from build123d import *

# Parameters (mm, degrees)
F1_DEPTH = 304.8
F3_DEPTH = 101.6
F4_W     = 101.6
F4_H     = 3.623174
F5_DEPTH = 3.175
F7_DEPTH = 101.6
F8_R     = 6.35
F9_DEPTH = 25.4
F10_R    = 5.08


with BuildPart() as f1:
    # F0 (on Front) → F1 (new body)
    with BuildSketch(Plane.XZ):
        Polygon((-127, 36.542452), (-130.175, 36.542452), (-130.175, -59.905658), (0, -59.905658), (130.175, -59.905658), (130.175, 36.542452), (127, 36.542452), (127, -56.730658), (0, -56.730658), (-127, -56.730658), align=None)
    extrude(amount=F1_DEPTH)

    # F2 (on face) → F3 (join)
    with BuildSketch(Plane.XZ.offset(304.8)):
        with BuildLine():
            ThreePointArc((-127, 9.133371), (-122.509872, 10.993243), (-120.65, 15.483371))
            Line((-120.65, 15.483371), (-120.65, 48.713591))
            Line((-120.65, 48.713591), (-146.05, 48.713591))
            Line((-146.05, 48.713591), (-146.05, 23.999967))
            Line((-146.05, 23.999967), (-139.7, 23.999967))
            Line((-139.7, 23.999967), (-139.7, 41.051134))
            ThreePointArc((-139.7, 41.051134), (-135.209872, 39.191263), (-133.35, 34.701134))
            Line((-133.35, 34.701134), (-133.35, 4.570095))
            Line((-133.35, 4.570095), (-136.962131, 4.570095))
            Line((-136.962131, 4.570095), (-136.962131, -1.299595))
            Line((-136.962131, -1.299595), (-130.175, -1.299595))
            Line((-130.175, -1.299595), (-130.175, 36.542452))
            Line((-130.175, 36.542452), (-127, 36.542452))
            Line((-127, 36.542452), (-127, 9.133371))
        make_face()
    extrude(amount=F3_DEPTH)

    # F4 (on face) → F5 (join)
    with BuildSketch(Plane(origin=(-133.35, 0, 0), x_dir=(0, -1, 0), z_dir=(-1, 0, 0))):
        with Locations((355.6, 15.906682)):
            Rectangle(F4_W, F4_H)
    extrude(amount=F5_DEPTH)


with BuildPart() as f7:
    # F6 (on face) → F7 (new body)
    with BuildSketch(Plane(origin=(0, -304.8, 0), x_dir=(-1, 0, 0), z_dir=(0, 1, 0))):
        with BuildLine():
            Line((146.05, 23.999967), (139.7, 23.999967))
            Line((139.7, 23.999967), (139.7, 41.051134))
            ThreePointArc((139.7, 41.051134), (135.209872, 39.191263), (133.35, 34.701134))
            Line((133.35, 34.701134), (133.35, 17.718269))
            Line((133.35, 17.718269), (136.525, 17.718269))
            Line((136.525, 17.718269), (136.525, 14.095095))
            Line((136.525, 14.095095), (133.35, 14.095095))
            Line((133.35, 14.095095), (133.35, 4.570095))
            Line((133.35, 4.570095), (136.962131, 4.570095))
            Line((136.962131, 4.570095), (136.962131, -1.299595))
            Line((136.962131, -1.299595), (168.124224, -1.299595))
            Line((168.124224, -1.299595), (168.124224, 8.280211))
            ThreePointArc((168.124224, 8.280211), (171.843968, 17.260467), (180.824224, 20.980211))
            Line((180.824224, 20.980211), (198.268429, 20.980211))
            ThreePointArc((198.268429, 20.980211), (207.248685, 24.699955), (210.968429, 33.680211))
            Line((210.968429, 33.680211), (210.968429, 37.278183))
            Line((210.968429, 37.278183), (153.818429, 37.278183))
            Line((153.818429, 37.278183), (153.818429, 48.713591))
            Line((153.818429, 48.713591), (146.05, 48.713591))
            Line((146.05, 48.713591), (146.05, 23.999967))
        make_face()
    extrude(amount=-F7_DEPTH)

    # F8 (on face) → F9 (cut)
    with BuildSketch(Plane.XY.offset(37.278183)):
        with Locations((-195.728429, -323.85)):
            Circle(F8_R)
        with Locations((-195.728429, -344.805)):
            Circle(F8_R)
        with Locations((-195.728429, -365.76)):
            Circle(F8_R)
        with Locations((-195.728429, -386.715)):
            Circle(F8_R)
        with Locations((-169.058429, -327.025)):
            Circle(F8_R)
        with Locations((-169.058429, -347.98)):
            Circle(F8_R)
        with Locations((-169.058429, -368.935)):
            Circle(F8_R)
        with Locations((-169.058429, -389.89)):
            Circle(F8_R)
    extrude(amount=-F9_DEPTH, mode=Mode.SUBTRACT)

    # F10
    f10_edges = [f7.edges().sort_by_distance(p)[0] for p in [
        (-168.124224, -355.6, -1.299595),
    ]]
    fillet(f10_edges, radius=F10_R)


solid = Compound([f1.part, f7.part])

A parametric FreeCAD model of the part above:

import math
import FreeCAD as App
import Part
import Sketcher
from FreeCAD import Vector
Q = App.Units.Quantity


def edges_at(feature, points):
    """Names of the edges that pass closest to the given points."""
    edges = feature.Shape.Edges
    near = lambda p: min(range(len(edges)), key=lambda i: edges[i].distToShape(Part.Vertex(*p))[0])
    return sorted({f"Edge{near(p) + 1}" for p in points})

doc = App.newDocument("Part")
body = doc.addObject("PartDesign::Body", "Body")
body.AllowCompound = True

sketch1 = body.newObject("Sketcher::SketchObject", "Sketch")
sketch1.AttachmentSupport = (doc.getObject("XZ_Plane"), [""])
sketch1.MapMode = "FlatFace"
sketch1.addGeometry([
    Part.LineSegment(Vector(-127, 36.542452, 0), Vector(-130.175, 36.542452, 0)),
    Part.LineSegment(Vector(-130.175, 36.542452, 0), Vector(-130.175, -59.905658, 0)),
    Part.LineSegment(Vector(-130.175, -59.905658, 0), Vector(130.175, -59.905658, 0)),
    Part.LineSegment(Vector(130.175, -59.905658, 0), Vector(130.175, 36.542452, 0)),
    Part.LineSegment(Vector(130.175, 36.542452, 0), Vector(127, 36.542452, 0)),
    Part.LineSegment(Vector(127, 36.542452, 0), Vector(127, -56.730658, 0)),
    Part.LineSegment(Vector(127, -56.730658, 0), Vector(-127, -56.730658, 0)),
    Part.LineSegment(Vector(-127, -56.730658, 0), Vector(-127, 36.542452, 0)),
], False)
sketch1.addConstraint([
    Sketcher.Constraint("Coincident", 0, 2, 1, 1),
    Sketcher.Constraint("Coincident", 1, 2, 2, 1),
    Sketcher.Constraint("Coincident", 2, 2, 3, 1),
    Sketcher.Constraint("Coincident", 3, 2, 4, 1),
    Sketcher.Constraint("Coincident", 4, 2, 5, 1),
    Sketcher.Constraint("Coincident", 5, 2, 6, 1),
    Sketcher.Constraint("Coincident", 6, 2, 7, 1),
    Sketcher.Constraint("Coincident", 7, 2, 0, 1),
    Sketcher.Constraint("Horizontal", 0),
    Sketcher.Constraint("Vertical", 1),
    Sketcher.Constraint("Horizontal", 2),
    Sketcher.Constraint("Vertical", 3),
    Sketcher.Constraint("Horizontal", 4),
    Sketcher.Constraint("Vertical", 5),
    Sketcher.Constraint("Horizontal", 6),
    Sketcher.Constraint("Vertical", 7),
    Sketcher.Constraint("Symmetric", 0, 2, 3, 2, -2),
    Sketcher.Constraint("Equal", 0, 4),
    Sketcher.Constraint("DistanceX", 6, 2, 6, 1, Q("10 in")),
    Sketcher.Constraint("DistanceX", 2, 1, 2, 2, Q("10.25 in")),
    Sketcher.Constraint("DistanceY", 2, 2, 5, 2, Q("0.125 in")),
    Sketcher.Constraint("DistanceY", 1, 2, 1, 1, Q("96.44811 mm")),
    Sketcher.Constraint("DistanceY", -1, 1, 0, 2, Q("36.542452 mm")),
])
pad1 = body.newObject("PartDesign::Pad", "Pad")
pad1.Profile = sketch1
pad1.Length = Q("12 in")

sketch2 = body.newObject("Sketcher::SketchObject", "Sketch001")
sketch2.AttachmentSupport = (doc.getObject("XZ_Plane"), [""])
sketch2.MapMode = "FlatFace"
sketch2.AttachmentOffset = App.Placement(Vector(0, 0, 12 * 25.4), App.Rotation())
sketch2.addGeometry([
    Part.ArcOfCircle(Part.Circle(Vector(-127, 15.483371, 0), Vector(0, 0, 1), 6.35), math.radians(-89.999998), math.radians(-0.000002)),
    Part.LineSegment(Vector(-120.65, 15.483371, 0), Vector(-120.65, 48.713591, 0)),
    Part.LineSegment(Vector(-120.65, 48.713591, 0), Vector(-146.05, 48.713591, 0)),
    Part.LineSegment(Vector(-146.05, 48.713591, 0), Vector(-146.05, 23.999967, 0)),
    Part.LineSegment(Vector(-146.05, 23.999967, 0), Vector(-139.7, 23.999967, 0)),
    Part.LineSegment(Vector(-139.7, 23.999967, 0), Vector(-139.7, 41.051134, 0)),
    Part.ArcOfCircle(Part.Circle(Vector(-139.699998, 34.701135, 0), Vector(0, 0, 1), 6.349998), math.radians(-0.000014), math.radians(90.000014)),
    Part.LineSegment(Vector(-133.35, 34.701134, 0), Vector(-133.35, 4.570095, 0)),
    Part.LineSegment(Vector(-133.35, 4.570095, 0), Vector(-136.962131, 4.570095, 0)),
    Part.LineSegment(Vector(-136.962131, 4.570095, 0), Vector(-136.962131, -1.299595, 0)),
    Part.LineSegment(Vector(-136.962131, -1.299595, 0), Vector(-130.175, -1.299595, 0)),
    Part.LineSegment(Vector(-130.175, -1.299595, 0), Vector(-130.175, 36.542452, 0)),
    Part.LineSegment(Vector(-130.175, 36.542452, 0), Vector(-127, 36.542452, 0)),
    Part.LineSegment(Vector(-127, 36.542452, 0), Vector(-127, 9.133371, 0)),
], False)
sketch2.addConstraint([
    Sketcher.Constraint("Tangent", 0, 2, 1, 1),
    Sketcher.Constraint("Coincident", 1, 2, 2, 1),
    Sketcher.Constraint("Coincident", 2, 2, 3, 1),
    Sketcher.Constraint("Coincident", 3, 2, 4, 1),
    Sketcher.Constraint("Coincident", 4, 2, 5, 1),
    Sketcher.Constraint("Coincident", 5, 2, 6, 2),
    Sketcher.Constraint("Tangent", 6, 1, 7, 1),
    Sketcher.Constraint("Coincident", 7, 2, 8, 1),
    Sketcher.Constraint("Coincident", 8, 2, 9, 1),
    Sketcher.Constraint("Coincident", 9, 2, 10, 1),
    Sketcher.Constraint("Coincident", 10, 2, 11, 1),
    Sketcher.Constraint("Coincident", 11, 2, 12, 1),
    Sketcher.Constraint("Coincident", 12, 2, 13, 1),
    Sketcher.Constraint("Coincident", 13, 2, 0, 1),
    Sketcher.Constraint("Vertical", 1),
    Sketcher.Constraint("Horizontal", 2),
    Sketcher.Constraint("Vertical", 3),
    Sketcher.Constraint("Horizontal", 4),
    Sketcher.Constraint("Vertical", 5),
    Sketcher.Constraint("Vertical", 7),
    Sketcher.Constraint("Horizontal", 8),
    Sketcher.Constraint("Vertical", 9),
    Sketcher.Constraint("Horizontal", 10),
    Sketcher.Constraint("Vertical", 11),
    Sketcher.Constraint("Horizontal", 12),
    Sketcher.Constraint("Vertical", 13),
    Sketcher.Constraint("Equal", 0, 6),
    Sketcher.Constraint("Vertical", 6, 3, 4, 2),
    Sketcher.Constraint("Vertical", 0, 3, 12, 2),
    Sketcher.Constraint("DistanceX", 2, 2, 2, 1, Q("1 in")),
    Sketcher.Constraint("Radius", 0, Q("0.25 in")),
    Sketcher.Constraint("DistanceX", 0, 3, -1, 1, Q("5 in")),
    Sketcher.Constraint("DistanceX", 4, 1, 4, 2, Q("0.25 in")),
    Sketcher.Constraint("DistanceX", 12, 1, 12, 2, Q("0.125 in")),
    Sketcher.Constraint("DistanceX", 8, 2, 8, 1, Q("3.612131 mm")),
    Sketcher.Constraint("DistanceY", 1, 1, 1, 2, Q("33.23022 mm")),
    Sketcher.Constraint("DistanceY", 7, 2, 7, 1, Q("30.131039 mm")),
    Sketcher.Constraint("DistanceY", 9, 2, 9, 1, Q("5.86969 mm")),
    Sketcher.Constraint("DistanceY", 13, 2, 13, 1, Q("27.409081 mm")),
    Sketcher.Constraint("DistanceY", 3, 2, 3, 1, Q("24.713624 mm")),
    Sketcher.Constraint("DistanceY", 5, 1, 5, 2, Q("17.051167 mm")),
    Sketcher.Constraint("DistanceY", -1, 1, 0, 3, Q("15.483371 mm")),
])
pad2 = body.newObject("PartDesign::Pad", "Pad001")
pad2.Profile = sketch2
pad2.Length = Q("4 in")

sketch3 = body.newObject("Sketcher::SketchObject", "Sketch002")
sketch3.AttachmentSupport = (doc.getObject("YZ_Plane"), [""])
sketch3.MapMode = "FlatFace"
sketch3.AttachmentOffset = App.Placement(Vector(0, 0, -5.25 * 25.4), App.Rotation())
sketch3.addGeometry([
    Part.LineSegment(Vector(-304.8, 17.718269, 0), Vector(-304.8, 14.095095, 0)),
    Part.LineSegment(Vector(-304.8, 14.095095, 0), Vector(-406.4, 14.095095, 0)),
    Part.LineSegment(Vector(-406.4, 14.095095, 0), Vector(-406.4, 17.718269, 0)),
    Part.LineSegment(Vector(-406.4, 17.718269, 0), Vector(-304.8, 17.718269, 0)),
], False)
sketch3.addConstraint([
    Sketcher.Constraint("Coincident", 0, 2, 1, 1),
    Sketcher.Constraint("Coincident", 1, 2, 2, 1),
    Sketcher.Constraint("Coincident", 2, 2, 3, 1),
    Sketcher.Constraint("Coincident", 3, 2, 0, 1),
    Sketcher.Constraint("Vertical", 0),
    Sketcher.Constraint("Horizontal", 1),
    Sketcher.Constraint("Vertical", 2),
    Sketcher.Constraint("Horizontal", 3),
    Sketcher.Constraint("DistanceX", 1, 2, 1, 1, Q("4 in")),
    Sketcher.Constraint("DistanceX", 0, 2, -1, 1, Q("12 in")),
    Sketcher.Constraint("DistanceY", 0, 2, 0, 1, Q("3.623174 mm")),
    Sketcher.Constraint("DistanceY", -1, 1, 2, 2, Q("17.718269 mm")),
])
pad3 = body.newObject("PartDesign::Pad", "Pad002")
pad3.Profile = sketch3
pad3.Length = Q("0.125 in")
pad3.Reversed = True
body2 = doc.addObject("PartDesign::Body", "Body001")

sketch4 = body2.newObject("Sketcher::SketchObject", "Sketch003")
sketch4.AttachmentSupport = (doc.getObject("XZ_Plane001"), [""])
sketch4.MapMode = "FlatFace"
sketch4.AttachmentOffset = App.Placement(Vector(0, 0, 12 * 25.4), App.Rotation())
sketch4.addGeometry([
    Part.LineSegment(Vector(-146.05, 23.999967, 0), Vector(-139.7, 23.999967, 0)),
    Part.LineSegment(Vector(-139.7, 23.999967, 0), Vector(-139.7, 41.051134, 0)),
    Part.ArcOfCircle(Part.Circle(Vector(-139.699998, 34.701135, 0), Vector(0, 0, 1), 6.349998), math.radians(-0.000014), math.radians(90.000014)),
    Part.LineSegment(Vector(-133.35, 34.701134, 0), Vector(-133.35, 17.718269, 0)),
    Part.LineSegment(Vector(-133.35, 17.718269, 0), Vector(-136.525, 17.718269, 0)),
    Part.LineSegment(Vector(-136.525, 17.718269, 0), Vector(-136.525, 14.095095, 0)),
    Part.LineSegment(Vector(-136.525, 14.095095, 0), Vector(-133.35, 14.095095, 0)),
    Part.LineSegment(Vector(-133.35, 14.095095, 0), Vector(-133.35, 4.570095, 0)),
    Part.LineSegment(Vector(-133.35, 4.570095, 0), Vector(-136.962131, 4.570095, 0)),
    Part.LineSegment(Vector(-136.962131, 4.570095, 0), Vector(-136.962131, -1.299595, 0)),
    Part.LineSegment(Vector(-136.962131, -1.299595, 0), Vector(-168.124224, -1.299595, 0)),
    Part.LineSegment(Vector(-168.124224, -1.299595, 0), Vector(-168.124224, 8.280211, 0)),
    Part.ArcOfCircle(Part.Circle(Vector(-180.824224, 8.280211, 0), Vector(0, 0, 1), 12.7), math.radians(0.000002), math.radians(89.999998)),
    Part.LineSegment(Vector(-180.824224, 20.980211, 0), Vector(-198.268429, 20.980211, 0)),
    Part.ArcOfCircle(Part.Circle(Vector(-198.268429, 33.680211, 0), Vector(0, 0, 1), 12.7), math.radians(-179.999998), math.radians(-90.000002)),
    Part.LineSegment(Vector(-210.968429, 33.680211, 0), Vector(-210.968429, 37.278183, 0)),
    Part.LineSegment(Vector(-210.968429, 37.278183, 0), Vector(-153.818429, 37.278183, 0)),
    Part.LineSegment(Vector(-153.818429, 37.278183, 0), Vector(-153.818429, 48.713591, 0)),
    Part.LineSegment(Vector(-153.818429, 48.713591, 0), Vector(-146.05, 48.713591, 0)),
    Part.LineSegment(Vector(-146.05, 48.713591, 0), Vector(-146.05, 23.999967, 0)),
], False)
sketch4.addConstraint([
    Sketcher.Constraint("Coincident", 0, 2, 1, 1),
    Sketcher.Constraint("Coincident", 1, 2, 2, 2),
    Sketcher.Constraint("Tangent", 2, 1, 3, 1),
    Sketcher.Constraint("Coincident", 3, 2, 4, 1),
    Sketcher.Constraint("Coincident", 4, 2, 5, 1),
    Sketcher.Constraint("Coincident", 5, 2, 6, 1),
    Sketcher.Constraint("Coincident", 6, 2, 7, 1),
    Sketcher.Constraint("Coincident", 7, 2, 8, 1),
    Sketcher.Constraint("Coincident", 8, 2, 9, 1),
    Sketcher.Constraint("Coincident", 9, 2, 10, 1),
    Sketcher.Constraint("Coincident", 10, 2, 11, 1),
    Sketcher.Constraint("Tangent", 11, 2, 12, 1),
    Sketcher.Constraint("Tangent", 12, 2, 13, 1),
    Sketcher.Constraint("Tangent", 13, 2, 14, 2),
    Sketcher.Constraint("Tangent", 14, 1, 15, 1),
    Sketcher.Constraint("Coincident", 15, 2, 16, 1),
    Sketcher.Constraint("Coincident", 16, 2, 17, 1),
    Sketcher.Constraint("Coincident", 17, 2, 18, 1),
    Sketcher.Constraint("Coincident", 18, 2, 19, 1),
    Sketcher.Constraint("Coincident", 19, 2, 0, 1),
    Sketcher.Constraint("Horizontal", 0),
    Sketcher.Constraint("Vertical", 1),
    Sketcher.Constraint("Vertical", 3),
    Sketcher.Constraint("Horizontal", 4),
    Sketcher.Constraint("Vertical", 5),
    Sketcher.Constraint("Horizontal", 6),
    Sketcher.Constraint("Vertical", 7),
    Sketcher.Constraint("Horizontal", 8),
    Sketcher.Constraint("Vertical", 9),
    Sketcher.Constraint("Horizontal", 10),
    Sketcher.Constraint("Vertical", 11),
    Sketcher.Constraint("Horizontal", 13),
    Sketcher.Constraint("Vertical", 15),
    Sketcher.Constraint("Horizontal", 16),
    Sketcher.Constraint("Vertical", 17),
    Sketcher.Constraint("Horizontal", 18),
    Sketcher.Constraint("Vertical", 19),
    Sketcher.Constraint("Equal", 12, 14),
    Sketcher.Constraint("Vertical", 2, 3, 0, 2),
    Sketcher.Constraint("Vertical", 3, 2, 6, 2),
    Sketcher.Constraint("Radius", 12, Q("0.5 in")),
    Sketcher.Constraint("Radius", 2, Q("0.2499999 in")),
    Sketcher.Constraint("DistanceX", 0, 1, 0, 2, Q("0.25 in")),
    Sketcher.Constraint("DistanceX", 16, 1, 16, 2, Q("2.25 in")),
    Sketcher.Constraint("DistanceX", 2, 3, -1, 1, Q("5.4999999 in")),
    Sketcher.Constraint("DistanceX", 4, 2, 4, 1, Q("0.125 in")),
    Sketcher.Constraint("DistanceY", 7, 2, 7, 1, Q("0.375 in")),
    Sketcher.Constraint("DistanceX", 8, 2, 8, 1, Q("3.612131 mm")),
    Sketcher.Constraint("DistanceX", 18, 1, 18, 2, Q("7.768429 mm")),
    Sketcher.Constraint("DistanceY", 9, 2, 9, 1, Q("5.86969 mm")),
    Sketcher.Constraint("DistanceY", 15, 1, 15, 2, Q("3.597972 mm")),
    Sketcher.Constraint("DistanceY", 17, 1, 17, 2, Q("11.435408 mm")),
    Sketcher.Constraint("DistanceY", 3, 2, 0, 2, Q("6.281698 mm")),
    Sketcher.Constraint("DistanceX", 10, 2, 10, 1, Q("31.162093 mm")),
    Sketcher.Constraint("DistanceY", 1, 1, 1, 2, Q("17.051167 mm")),
    Sketcher.Constraint("DistanceY", 5, 2, 5, 1, Q("3.623174 mm")),
    Sketcher.Constraint("DistanceY", 11, 1, 11, 2, Q("9.579806 mm")),
    Sketcher.Constraint("DistanceY", -1, 1, 12, 3, Q("8.280211 mm")),
])
pad4 = body2.newObject("PartDesign::Pad", "Pad003")
pad4.Profile = sketch4
pad4.Length = Q("4 in")

sketch5 = body2.newObject("Sketcher::SketchObject", "Sketch004")
sketch5.AttachmentSupport = (doc.getObject("XY_Plane001"), [""])
sketch5.MapMode = "FlatFace"
sketch5.AttachmentOffset = App.Placement(Vector(0, 0, 37.278183), App.Rotation())
sketch5.addGeometry([
    Part.Circle(Vector(-195.728429, -323.85, 0), Vector(0, 0, 1), 6.35),
    Part.Circle(Vector(-195.728429, -344.805, 0), Vector(0, 0, 1), 6.35),
    Part.Circle(Vector(-195.728429, -365.76, 0), Vector(0, 0, 1), 6.35),
    Part.Circle(Vector(-195.728429, -386.715, 0), Vector(0, 0, 1), 6.35),
    Part.Circle(Vector(-169.058429, -327.025, 0), Vector(0, 0, 1), 6.35),
    Part.Circle(Vector(-169.058429, -347.98, 0), Vector(0, 0, 1), 6.35),
    Part.Circle(Vector(-169.058429, -368.935, 0), Vector(0, 0, 1), 6.35),
    Part.Circle(Vector(-169.058429, -389.89, 0), Vector(0, 0, 1), 6.35),
], False)
sketch5.addConstraint([
    Sketcher.Constraint("Equal", 0, 1),
    Sketcher.Constraint("Equal", 1, 2),
    Sketcher.Constraint("Equal", 2, 3),
    Sketcher.Constraint("Equal", 3, 4),
    Sketcher.Constraint("Equal", 4, 5),
    Sketcher.Constraint("Equal", 5, 6),
    Sketcher.Constraint("Equal", 6, 7),
    Sketcher.Constraint("Vertical", 0, 3, 1, 3),
    Sketcher.Constraint("Vertical", 1, 3, 2, 3),
    Sketcher.Constraint("Vertical", 2, 3, 3, 3),
    Sketcher.Constraint("Vertical", 4, 3, 5, 3),
    Sketcher.Constraint("Vertical", 5, 3, 6, 3),
    Sketcher.Constraint("Vertical", 6, 3, 7, 3),
    Sketcher.Constraint("Diameter", 0, Q("0.5 in")),
    Sketcher.Constraint("DistanceY", 2, 3, -1, 1, Q("14.4 in")),
    Sketcher.Constraint("DistanceY", 5, 3, -1, 1, Q("13.7 in")),
    Sketcher.Constraint("DistanceY", 1, 3, 4, 3, Q("0.7 in")),
    Sketcher.Constraint("DistanceY", 3, 3, 6, 3, Q("0.7 in")),
    Sketcher.Constraint("DistanceY", 0, 3, -1, 1, Q("12.75 in")),
    Sketcher.Constraint("DistanceY", 7, 3, -1, 1, Q("15.35 in")),
    Sketcher.Constraint("DistanceY", 3, 3, 1, 3, Q("1.65 in")),
    Sketcher.Constraint("DistanceX", 0, 3, 4, 3, Q("1.05 in")),
    Sketcher.Constraint("DistanceY", 1, 3, -1, 1, Q("13.575 in")),
    Sketcher.Constraint("DistanceX", 0, 3, -1, 1, Q("195.728429 mm")),
])
pocket1 = body2.newObject("PartDesign::Pocket", "Pocket")
pocket1.Profile = sketch5
pocket1.Length = Q("1 in")
doc.recompute()

fillet = body2.newObject("PartDesign::Fillet", "Fillet")
fillet.Base = (pocket1, edges_at(pocket1, [(-168.124, -355.6, -1.3)]))
fillet.Radius = Q("0.2 in")

doc.recompute()
